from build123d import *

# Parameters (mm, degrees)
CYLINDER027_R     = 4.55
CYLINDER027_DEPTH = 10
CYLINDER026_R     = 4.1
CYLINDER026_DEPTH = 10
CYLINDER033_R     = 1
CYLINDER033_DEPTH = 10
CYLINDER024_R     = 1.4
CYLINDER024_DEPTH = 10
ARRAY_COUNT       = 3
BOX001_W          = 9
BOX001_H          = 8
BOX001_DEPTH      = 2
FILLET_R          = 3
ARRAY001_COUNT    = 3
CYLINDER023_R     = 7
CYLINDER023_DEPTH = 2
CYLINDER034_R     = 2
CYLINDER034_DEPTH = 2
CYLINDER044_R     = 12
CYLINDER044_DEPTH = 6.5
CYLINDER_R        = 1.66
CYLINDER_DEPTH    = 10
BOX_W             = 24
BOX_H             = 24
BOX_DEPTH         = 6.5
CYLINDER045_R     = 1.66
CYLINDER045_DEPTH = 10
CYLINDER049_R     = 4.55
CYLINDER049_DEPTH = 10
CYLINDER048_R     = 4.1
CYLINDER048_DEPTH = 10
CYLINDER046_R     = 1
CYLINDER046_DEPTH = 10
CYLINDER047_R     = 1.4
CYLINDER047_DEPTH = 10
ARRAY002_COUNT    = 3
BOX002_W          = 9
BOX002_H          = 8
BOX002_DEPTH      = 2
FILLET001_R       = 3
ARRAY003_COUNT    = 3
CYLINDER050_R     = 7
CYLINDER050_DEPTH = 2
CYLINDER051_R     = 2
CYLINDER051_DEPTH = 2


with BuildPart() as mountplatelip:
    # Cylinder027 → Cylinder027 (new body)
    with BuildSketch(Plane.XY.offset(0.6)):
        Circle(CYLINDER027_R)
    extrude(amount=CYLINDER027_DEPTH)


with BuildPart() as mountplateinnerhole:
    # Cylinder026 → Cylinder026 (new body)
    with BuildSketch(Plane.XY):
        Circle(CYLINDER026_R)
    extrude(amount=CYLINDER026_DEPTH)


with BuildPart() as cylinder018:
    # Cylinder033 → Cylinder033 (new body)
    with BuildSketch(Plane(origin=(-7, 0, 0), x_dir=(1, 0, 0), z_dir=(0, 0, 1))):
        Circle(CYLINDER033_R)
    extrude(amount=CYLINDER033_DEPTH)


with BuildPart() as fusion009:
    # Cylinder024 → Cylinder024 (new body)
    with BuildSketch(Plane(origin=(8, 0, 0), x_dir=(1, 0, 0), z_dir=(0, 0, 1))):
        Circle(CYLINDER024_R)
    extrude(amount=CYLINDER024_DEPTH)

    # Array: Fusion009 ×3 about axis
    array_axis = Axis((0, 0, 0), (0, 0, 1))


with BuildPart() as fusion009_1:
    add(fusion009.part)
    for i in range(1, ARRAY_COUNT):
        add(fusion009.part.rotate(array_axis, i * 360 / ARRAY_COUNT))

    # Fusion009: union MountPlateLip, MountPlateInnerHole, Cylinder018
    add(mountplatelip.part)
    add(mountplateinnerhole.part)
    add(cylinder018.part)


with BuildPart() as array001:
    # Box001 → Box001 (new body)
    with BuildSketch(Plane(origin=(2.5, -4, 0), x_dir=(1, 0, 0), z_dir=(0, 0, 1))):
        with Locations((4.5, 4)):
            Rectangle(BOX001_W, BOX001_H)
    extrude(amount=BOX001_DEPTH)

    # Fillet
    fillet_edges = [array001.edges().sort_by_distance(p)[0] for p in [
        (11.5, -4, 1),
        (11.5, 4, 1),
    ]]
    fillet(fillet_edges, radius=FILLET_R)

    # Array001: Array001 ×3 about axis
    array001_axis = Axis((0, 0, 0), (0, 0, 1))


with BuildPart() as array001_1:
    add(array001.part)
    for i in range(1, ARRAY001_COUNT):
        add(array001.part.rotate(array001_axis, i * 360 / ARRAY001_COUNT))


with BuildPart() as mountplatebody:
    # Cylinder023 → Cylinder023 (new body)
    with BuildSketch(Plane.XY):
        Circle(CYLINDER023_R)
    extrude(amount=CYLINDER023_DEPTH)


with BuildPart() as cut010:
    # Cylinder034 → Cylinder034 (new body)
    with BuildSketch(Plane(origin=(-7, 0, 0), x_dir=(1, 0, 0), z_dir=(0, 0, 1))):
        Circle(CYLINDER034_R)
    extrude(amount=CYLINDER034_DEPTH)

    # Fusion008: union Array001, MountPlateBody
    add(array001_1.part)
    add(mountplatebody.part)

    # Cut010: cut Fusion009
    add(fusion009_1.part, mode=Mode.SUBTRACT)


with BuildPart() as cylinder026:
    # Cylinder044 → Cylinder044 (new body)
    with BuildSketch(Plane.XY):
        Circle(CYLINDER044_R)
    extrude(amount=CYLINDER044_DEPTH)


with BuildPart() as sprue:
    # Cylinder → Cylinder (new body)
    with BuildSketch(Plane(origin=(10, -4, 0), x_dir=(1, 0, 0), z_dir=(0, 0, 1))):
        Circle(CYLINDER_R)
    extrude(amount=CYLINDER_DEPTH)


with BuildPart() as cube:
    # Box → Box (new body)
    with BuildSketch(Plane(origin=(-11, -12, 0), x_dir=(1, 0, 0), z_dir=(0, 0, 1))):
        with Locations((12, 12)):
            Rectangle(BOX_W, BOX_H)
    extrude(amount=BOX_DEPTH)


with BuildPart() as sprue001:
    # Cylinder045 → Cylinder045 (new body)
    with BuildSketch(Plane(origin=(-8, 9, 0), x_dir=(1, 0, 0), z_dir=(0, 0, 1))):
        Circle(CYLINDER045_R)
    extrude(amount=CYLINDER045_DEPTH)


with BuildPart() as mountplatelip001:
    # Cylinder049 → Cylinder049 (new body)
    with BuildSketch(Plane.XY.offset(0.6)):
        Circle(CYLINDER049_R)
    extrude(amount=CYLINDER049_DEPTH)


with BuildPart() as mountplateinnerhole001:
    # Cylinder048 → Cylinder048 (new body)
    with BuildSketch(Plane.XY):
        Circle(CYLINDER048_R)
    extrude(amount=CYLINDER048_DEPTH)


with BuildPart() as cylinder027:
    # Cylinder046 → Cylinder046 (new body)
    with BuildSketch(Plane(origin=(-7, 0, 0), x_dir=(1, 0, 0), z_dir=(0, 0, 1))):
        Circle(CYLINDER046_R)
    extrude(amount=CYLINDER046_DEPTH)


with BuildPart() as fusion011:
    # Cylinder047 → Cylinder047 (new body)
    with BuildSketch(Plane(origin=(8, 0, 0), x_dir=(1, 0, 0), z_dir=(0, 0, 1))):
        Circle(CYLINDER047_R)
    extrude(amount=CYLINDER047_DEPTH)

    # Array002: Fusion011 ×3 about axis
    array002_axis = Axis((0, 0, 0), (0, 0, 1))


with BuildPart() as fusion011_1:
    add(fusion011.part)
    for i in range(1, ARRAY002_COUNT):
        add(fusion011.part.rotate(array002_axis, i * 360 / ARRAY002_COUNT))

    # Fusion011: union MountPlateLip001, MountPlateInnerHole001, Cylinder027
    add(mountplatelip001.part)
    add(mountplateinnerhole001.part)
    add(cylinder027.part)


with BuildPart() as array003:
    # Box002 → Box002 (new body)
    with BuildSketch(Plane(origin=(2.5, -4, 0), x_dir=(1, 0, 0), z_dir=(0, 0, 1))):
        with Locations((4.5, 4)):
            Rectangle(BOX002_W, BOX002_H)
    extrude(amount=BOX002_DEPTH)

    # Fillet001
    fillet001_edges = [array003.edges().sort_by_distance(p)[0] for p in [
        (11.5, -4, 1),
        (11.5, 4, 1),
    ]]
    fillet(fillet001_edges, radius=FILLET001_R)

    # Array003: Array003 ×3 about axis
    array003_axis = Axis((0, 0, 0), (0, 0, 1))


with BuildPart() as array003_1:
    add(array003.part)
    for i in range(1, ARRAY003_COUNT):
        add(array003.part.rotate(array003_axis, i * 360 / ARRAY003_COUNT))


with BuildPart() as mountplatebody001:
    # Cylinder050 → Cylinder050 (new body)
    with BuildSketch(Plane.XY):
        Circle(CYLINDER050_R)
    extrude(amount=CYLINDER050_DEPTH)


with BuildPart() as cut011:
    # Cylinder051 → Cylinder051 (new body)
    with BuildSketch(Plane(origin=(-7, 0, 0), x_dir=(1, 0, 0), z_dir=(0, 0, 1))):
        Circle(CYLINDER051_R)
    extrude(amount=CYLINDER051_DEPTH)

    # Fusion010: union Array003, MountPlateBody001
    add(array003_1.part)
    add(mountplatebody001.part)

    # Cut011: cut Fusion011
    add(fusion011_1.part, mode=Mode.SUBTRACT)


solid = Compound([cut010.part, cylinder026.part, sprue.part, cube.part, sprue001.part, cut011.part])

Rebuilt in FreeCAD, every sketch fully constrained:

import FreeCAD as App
import Part
import Sketcher
from FreeCAD import Vector


def edges_at(feature, points):
    """Names of the edges that pass closest to the given points."""
    edges = feature.Shape.Edges
    near = lambda p: min(range(len(edges)), key=lambda i: edges[i].distToShape(Part.Vertex(*p))[0])
    return sorted({f"Edge{near(p) + 1}" for p in points})


def add_polygon(sketch, points):
    """Adds a closed chain of lines whose ends are joined by coincident constraints."""
    first, n = sketch.GeometryCount, len(points)
    for a, b in zip(points, points[1:] + points[:1]):
        sketch.addGeometry(Part.LineSegment(App.Vector(*a, 0), App.Vector(*b, 0)), False)
    for i in range(n):
        sketch.addConstraint(Sketcher.Constraint("Coincident", first + i, 2, first + (i + 1) % n, 1))

doc = App.newDocument("Part")
params = doc.addObject("Spreadsheet::Sheet", "Params")
for row, (alias, value) in enumerate([
    ("sketch1_diameter", "9.1 mm"),
    ("pad1_length", "10 mm"),
    ("sketch2_diameter", "8.2 mm"),
    ("pad2_length", "10 mm"),
    ("sketch3_diameter", "2 mm"),
    ("pad3_length", "10 mm"),
    ("sketch4_diameter", "2.8 mm"),
    ("pad4_length", "10 mm"),
    ("sketch5_width", "9 mm"),
    ("sketch5_height", "8 mm"),
    ("pad5_length", "2 mm"),
    ("fillet_radius", "3 mm"),
    ("sketch6_diameter", "14 mm"),
    ("pad6_length", "2 mm"),
    ("sketch7_diameter", "4 mm"),
    ("pad7_length", "2 mm"),
    ("sketch8_diameter", "24 mm"),
    ("pad8_length", "6.5 mm"),
    ("sketch9_diameter", "3.32 mm"),
    ("pad9_length", "10 mm"),
    ("sketch10_width", "24 mm"),
    ("pad10_length", "6.5 mm"),
    ("sketch11_diameter", "3.32 mm"),
    ("pad11_length", "10 mm"),
    ("sketch12_diameter", "9.1 mm"),
    ("pad12_length", "10 mm"),
    ("sketch13_diameter", "8.2 mm"),
    ("pad13_length", "10 mm"),
    ("sketch14_diameter", "2 mm"),
    ("pad14_length", "10 mm"),
    ("sketch15_diameter", "2.8 mm"),
    ("pad15_length", "10 mm"),
    ("sketch16_width", "9 mm"),
    ("sketch16_height", "8 mm"),
    ("pad16_length", "2 mm"),
    ("fillet2_radius", "3 mm"),
    ("sketch17_diameter", "14 mm"),
    ("pad17_length", "2 mm"),
    ("sketch18_diameter", "4 mm"),
    ("pad18_length", "2 mm"),
], start=1):
    params.set(f"A{row}", alias)
    params.set(f"B{row}", "=" + value)
    params.setAlias(f"B{row}", alias)

body = doc.addObject("PartDesign::Body", "Body")

sketch1 = body.newObject("Sketcher::SketchObject", "Sketch")
sketch1.AttachmentSupport = (doc.getObject("XY_Plane"), [""])
sketch1.MapMode = "FlatFace"
sketch1.AttachmentOffset = App.Placement(Vector(0, 0, 0.6), App.Rotation())
sketch1.addGeometry(Part.Circle(Vector(0, 0, 0), Vector(0, 0, 1), 4.5), False)
sketch1.addConstraint([
    Sketcher.Constraint("Coincident", 0, 3, -1, 1),
    Sketcher.Constraint("Diameter", 0, 9.1),
])
sketch1.setExpression("Constraints[1]", "Params.sketch1_diameter")
pad1 = body.newObject("PartDesign::Pad", "Pad")
pad1.Profile = sketch1
pad1.setExpression("Length", "Params.pad1_length")
body2 = doc.addObject("PartDesign::Body", "Body001")

sketch2 = body2.newObject("Sketcher::SketchObject", "Sketch001")
sketch2.AttachmentSupport = (doc.getObject("XY_Plane001"), [""])
sketch2.MapMode = "FlatFace"
sketch2.addGeometry(Part.Circle(Vector(0, 0, 0), Vector(0, 0, 1), 4.1), False)
sketch2.addConstraint([
    Sketcher.Constraint("Coincident", 0, 3, -1, 1),
    Sketcher.Constraint("Diameter", 0, 8.2),
])
sketch2.setExpression("Constraints[1]", "Params.sketch2_diameter")
pad2 = body2.newObject("PartDesign::Pad", "Pad001")
pad2.Profile = sketch2
pad2.setExpression("Length", "Params.pad2_length")
body3 = doc.addObject("PartDesign::Body", "Body002")

sketch3 = body3.newObject("Sketcher::SketchObject", "Sketch002")
sketch3.AttachmentSupport = (doc.getObject("XY_Plane002"), [""])
sketch3.MapMode = "FlatFace"
sketch3.addGeometry(Part.Circle(Vector(-7, 0, 0), Vector(0, 0, 1), 1), False)
sketch3.addConstraint([
    Sketcher.Constraint("PointOnObject", 0, 3, -1),
    Sketcher.Constraint("Diameter", 0, 2.0),
    Sketcher.Constraint("DistanceX", 0, 3, -1, 1, 7.0),
])
sketch3.setExpression("Constraints[1]", "Params.sketch3_diameter")
pad3 = body3.newObject("PartDesign::Pad", "Pad002")
pad3.Profile = sketch3
pad3.setExpression("Length", "Params.pad3_length")
body4 = doc.addObject("PartDesign::Body", "Body003")

sketch4 = body4.newObject("Sketcher::SketchObject", "Sketch003")
sketch4.AttachmentSupport = (doc.getObject("XY_Plane003"), [""])
sketch4.MapMode = "FlatFace"
sketch4.addGeometry(Part.Circle(Vector(8, 0, 0), Vector(0, 0, 1), 1.4), False)
sketch4.addConstraint([
    Sketcher.Constraint("PointOnObject", 0, 3, -1),
    Sketcher.Constraint("Diameter", 0, 2.8),
    Sketcher.Constraint("DistanceX", -1, 1, 0, 3, 8.0),
])
sketch4.setExpression("Constraints[1]", "Params.sketch4_diameter")
pad4 = body4.newObject("PartDesign::Pad", "Pad003")
pad4.Profile = sketch4
pad4.setExpression("Length", "Params.pad4_length")
body5 = doc.addObject("PartDesign::Body", "Body004")
body5.AllowCompound = True
doc.recompute()

body5.BaseFeature = body4
doc.recompute()

body6 = doc.addObject("PartDesign::Body", "Body005")
body6.BaseFeature = body4
body6.Placement = App.Placement(Vector(0, 0, 0), App.Rotation(Vector(0, 0, 1), 120))
boolean = body5.newObject("PartDesign::Boolean", "Boolean")
boolean.Type = "Fuse"
boolean.addObjects([body6])
doc.recompute()

body4.Placement = App.Placement(Vector(0, 0, 0), App.Rotation(Vector(0, 0, 1), 240))
boolean2 = body5.newObject("PartDesign::Boolean", "Boolean001")
boolean2.Type = "Fuse"
boolean2.addObjects([body4])
doc.recompute()

boolean3 = body5.newObject("PartDesign::Boolean", "Boolean002")
boolean3.Type = "Fuse"
boolean3.addObjects([body])
doc.recompute()

boolean4 = body5.newObject("PartDesign::Boolean", "Boolean003")
boolean4.Type = "Fuse"
boolean4.addObjects([body2])
doc.recompute()

boolean5 = body5.newObject("PartDesign::Boolean", "Boolean004")
boolean5.Type = "Fuse"
boolean5.addObjects([body3])
body7 = doc.addObject("PartDesign::Body", "Body006")

sketch5 = body7.newObject("Sketcher::SketchObject", "Sketch004")
sketch5.AttachmentSupport = (doc.getObject("XY_Plane006"), [""])
sketch5.MapMode = "FlatFace"
add_polygon(sketch5, [(2, 4), (2, -4), (12, -4), (12, 4)])
sketch5.addConstraint([
    Sketcher.Constraint("Vertical", 0),
    Sketcher.Constraint("Horizontal", 1),
    Sketcher.Constraint("Vertical", 2),
    Sketcher.Constraint("Horizontal", 3),
    Sketcher.Constraint("DistanceX", 1, 1, 1, 2, 9.0),
    Sketcher.Constraint("DistanceY", 0, 2, 0, 1, 8.0),
    Sketcher.Constraint("DistanceY", 0, 2, -1, 1, 4.0),
    Sketcher.Constraint("DistanceX", -1, 1, 0, 2, 2.5),
])
sketch5.setExpression("Constraints[8]", "Params.sketch5_width")
sketch5.setExpression("Constraints[9]", "Params.sketch5_height")
pad5 = body7.newObject("PartDesign::Pad", "Pad004")
pad5.Profile = sketch5
pad5.setExpression("Length", "Params.pad5_length")
doc.recompute()

fillet = body7.newObject("PartDesign::Fillet", "Fillet")
fillet.Base = (pad5, edges_at(pad5, [(11.5, -4, 1), (11.5, 4, 1)]))
fillet.setExpression("Radius", "Params.fillet_radius")
body8 = doc.addObject("PartDesign::Body", "Body007")
body8.AllowCompound = True
doc.recompute()

body8.BaseFeature = body7
doc.recompute()

body9 = doc.addObject("PartDesign::Body", "Body008")
body9.BaseFeature = body7
body9.Placement = App.Placement(Vector(0, 0, 0), App.Rotation(Vector(0, 0, 1), 120))
boolean6 = body8.newObject("PartDesign::Boolean", "Boolean005")
boolean6.Type = "Fuse"
boolean6.addObjects([body9])
doc.recompute()

body7.Placement = App.Placement(Vector(0, 0, 0), App.Rotation(Vector(0, 0, 1), 240))
boolean7 = body8.newObject("PartDesign::Boolean", "Boolean006")
boolean7.Type = "Fuse"
boolean7.addObjects([body7])
body10 = doc.addObject("PartDesign::Body", "Body009")

sketch6 = body10.newObject("Sketcher::SketchObject", "Sketch005")
sketch6.AttachmentSupport = (doc.getObject("XY_Plane009"), [""])
sketch6.MapMode = "FlatFace"
sketch6.addGeometry(Part.Circle(Vector(0, 0, 0), Vector(0, 0, 1), 7), False)
sketch6.addConstraint([
    Sketcher.Constraint("Coincident", 0, 3, -1, 1),
    Sketcher.Constraint("Diameter", 0, 14.0),
])
sketch6.setExpression("Constraints[1]", "Params.sketch6_diameter")
pad6 = body10.newObject("PartDesign::Pad", "Pad005")
pad6.Profile = sketch6
pad6.setExpression("Length", "Params.pad6_length")
body11 = doc.addObject("PartDesign::Body", "Body010")
body11.AllowCompound = True

sketch7 = body11.newObject("Sketcher::SketchObject", "Sketch006")
sketch7.AttachmentSupport = (doc.getObject("XY_Plane010"), [""])
sketch7.MapMode = "FlatFace"
sketch7.addGeometry(Part.Circle(Vector(-7, 0, 0), Vector(0, 0, 1), 2), False)
sketch7.addConstraint([
    Sketcher.Constraint("PointOnObject", 0, 3, -1),
    Sketcher.Constraint("Diameter", 0, 4.0),
    Sketcher.Constraint("DistanceX", 0, 3, -1, 1, 7.0),
])
sketch7.setExpression("Constraints[1]", "Params.sketch7_diameter")
pad7 = body11.newObject("PartDesign::Pad", "Pad006")
pad7.Profile = sketch7
pad7.setExpression("Length", "Params.pad7_length")
doc.recompute()

boolean8 = body11.newObject("PartDesign::Boolean", "Boolean007")
boolean8.Type = "Fuse"
boolean8.addObjects([body8])
doc.recompute()

boolean9 = body11.newObject("PartDesign::Boolean", "Boolean008")
boolean9.Type = "Fuse"
boolean9.addObjects([body10])
doc.recompute()

boolean10 = body11.newObject("PartDesign::Boolean", "Boolean009")
boolean10.Type = "Cut"
boolean10.addObjects([body5])
body12 = doc.addObject("PartDesign::Body", "Body011")

sketch8 = body12.newObject("Sketcher::SketchObject", "Sketch007")
sketch8.AttachmentSupport = (doc.getObject("XY_Plane011"), [""])
sketch8.MapMode = "FlatFace"
sketch8.addGeometry(Part.Circle(Vector(0, 0, 0), Vector(0, 0, 1), 12), False)
sketch8.addConstraint([
    Sketcher.Constraint("Coincident", 0, 3, -1, 1),
    Sketcher.Constraint("Diameter", 0, 24.0),
])
sketch8.setExpression("Constraints[1]", "Params.sketch8_diameter")
pad8 = body12.newObject("PartDesign::Pad", "Pad007")
pad8.Profile = sketch8
pad8.setExpression("Length", "Params.pad8_length")
body13 = doc.addObject("PartDesign::Body", "Body012")

sketch9 = body13.newObject("Sketcher::SketchObject", "Sketch008")
sketch9.AttachmentSupport = (doc.getObject("XY_Plane012"), [""])
sketch9.MapMode = "FlatFace"
sketch9.addGeometry(Part.Circle(Vector(10, -4, 0), Vector(0, 0, 1), 1.7), False)
sketch9.addConstraint([
    Sketcher.Constraint("Diameter", 0, 3.32),
    Sketcher.Constraint("DistanceX", -1, 1, 0, 3, 10.0),
    Sketcher.Constraint("DistanceY", 0, 3, -1, 1, 4.0),
])
sketch9.setExpression("Constraints[0]", "Params.sketch9_diameter")
pad9 = body13.newObject("PartDesign::Pad", "Pad008")
pad9.Profile = sketch9
pad9.setExpression("Length", "Params.pad9_length")
body14 = doc.addObject("PartDesign::Body", "Body013")

sketch10 = body14.newObject("Sketcher::SketchObject", "Sketch009")
sketch10.AttachmentSupport = (doc.getObject("XY_Plane013"), [""])
sketch10.MapMode = "FlatFace"
add_polygon(sketch10, [(-11, 12), (-11, -12), (13, -12), (13, 12)])
sketch10.addConstraint([
    Sketcher.Constraint("Vertical", 0),
    Sketcher.Constraint("Horizontal", 1),
    Sketcher.Constraint("Vertical", 2),
    Sketcher.Constraint("Horizontal", 3),
    Sketcher.Constraint("Equal", 3, 0),
    Sketcher.Constraint("DistanceX", 1, 1, 1, 2, 24.0),
    Sketcher.Constraint("DistanceX", 0, 2, -1, 1, 11.0),
    Sketcher.Constraint("DistanceY", 0, 2, -1, 1, 12.0),
])
sketch10.setExpression("Constraints[9]", "Params.sketch10_width")
pad10 = body14.newObject("PartDesign::Pad", "Pad009")
pad10.Profile = sketch10
pad10.setExpression("Length", "Params.pad10_length")
body15 = doc.addObject("PartDesign::Body", "Body014")

sketch11 = body15.newObject("Sketcher::SketchObject", "Sketch010")
sketch11.AttachmentSupport = (doc.getObject("XY_Plane014"), [""])
sketch11.MapMode = "FlatFace"
sketch11.addGeometry(Part.Circle(Vector(-8, 9, 0), Vector(0, 0, 1), 1.7), False)
sketch11.addConstraint([
    Sketcher.Constraint("Diameter", 0, 3.32),
    Sketcher.Constraint("DistanceX", 0, 3, -1, 1, 8.0),
    Sketcher.Constraint("DistanceY", -1, 1, 0, 3, 9.0),
])
sketch11.setExpression("Constraints[0]", "Params.sketch11_diameter")
pad11 = body15.newObject("PartDesign::Pad", "Pad010")
pad11.Profile = sketch11
pad11.setExpression("Length", "Params.pad11_length")
body16 = doc.addObject("PartDesign::Body", "Body015")

sketch12 = body16.newObject("Sketcher::SketchObject", "Sketch011")
sketch12.AttachmentSupport = (doc.getObject("XY_Plane015"), [""])
sketch12.MapMode = "FlatFace"
sketch12.AttachmentOffset = App.Placement(Vector(0, 0, 0.6), App.Rotation())
sketch12.addGeometry(Part.Circle(Vector(0, 0, 0), Vector(0, 0, 1), 4.5), False)
sketch12.addConstraint([
    Sketcher.Constraint("Coincident", 0, 3, -1, 1),
    Sketcher.Constraint("Diameter", 0, 9.1),
])
sketch12.setExpression("Constraints[1]", "Params.sketch12_diameter")
pad12 = body16.newObject("PartDesign::Pad", "Pad011")
pad12.Profile = sketch12
pad12.setExpression("Length", "Params.pad12_length")
body17 = doc.addObject("PartDesign::Body", "Body016")

sketch13 = body17.newObject("Sketcher::SketchObject", "Sketch012")
sketch13.AttachmentSupport = (doc.getObject("XY_Plane016"), [""])
sketch13.MapMode = "FlatFace"
sketch13.addGeometry(Part.Circle(Vector(0, 0, 0), Vector(0, 0, 1), 4.1), False)
sketch13.addConstraint([
    Sketcher.Constraint("Coincident", 0, 3, -1, 1),
    Sketcher.Constraint("Diameter", 0, 8.2),
])
sketch13.setExpression("Constraints[1]", "Params.sketch13_diameter")
pad13 = body17.newObject("PartDesign::Pad", "Pad012")
pad13.Profile = sketch13
pad13.setExpression("Length", "Params.pad13_length")
body18 = doc.addObject("PartDesign::Body", "Body017")

sketch14 = body18.newObject("Sketcher::SketchObject", "Sketch013")
sketch14.AttachmentSupport = (doc.getObject("XY_Plane017"), [""])
sketch14.MapMode = "FlatFace"
sketch14.addGeometry(Part.Circle(Vector(-7, 0, 0), Vector(0, 0, 1), 1), False)
sketch14.addConstraint([
    Sketcher.Constraint("PointOnObject", 0, 3, -1),
    Sketcher.Constraint("Diameter", 0, 2.0),
    Sketcher.Constraint("DistanceX", 0, 3, -1, 1, 7.0),
])
sketch14.setExpression("Constraints[1]", "Params.sketch14_diameter")
pad14 = body18.newObject("PartDesign::Pad", "Pad013")
pad14.Profile = sketch14
pad14.setExpression("Length", "Params.pad14_length")
body19 = doc.addObject("PartDesign::Body", "Body018")

sketch15 = body19.newObject("Sketcher::SketchObject", "Sketch014")
sketch15.AttachmentSupport = (doc.getObject("XY_Plane018"), [""])
sketch15.MapMode = "FlatFace"
sketch15.addGeometry(Part.Circle(Vector(8, 0, 0), Vector(0, 0, 1), 1.4), False)
sketch15.addConstraint([
    Sketcher.Constraint("PointOnObject", 0, 3, -1),
    Sketcher.Constraint("Diameter", 0, 2.8),
    Sketcher.Constraint("DistanceX", -1, 1, 0, 3, 8.0),
])
sketch15.setExpression("Constraints[1]", "Params.sketch15_diameter")
pad15 = body19.newObject("PartDesign::Pad", "Pad014")
pad15.Profile = sketch15
pad15.setExpression("Length", "Params.pad15_length")
body20 = doc.addObject("PartDesign::Body", "Body019")
body20.AllowCompound = True
doc.recompute()

body20.BaseFeature = body19
doc.recompute()

body21 = doc.addObject("PartDesign::Body", "Body020")
body21.BaseFeature = body19
body21.Placement = App.Placement(Vector(0, 0, 0), App.Rotation(Vector(0, 0, 1), 120))
boolean11 = body20.newObject("PartDesign::Boolean", "Boolean010")
boolean11.Type = "Fuse"
boolean11.addObjects([body21])
doc.recompute()

body19.Placement = App.Placement(Vector(0, 0, 0), App.Rotation(Vector(0, 0, 1), 240))
boolean12 = body20.newObject("PartDesign::Boolean", "Boolean011")
boolean12.Type = "Fuse"
boolean12.addObjects([body19])
doc.recompute()

boolean13 = body20.newObject("PartDesign::Boolean", "Boolean012")
boolean13.Type = "Fuse"
boolean13.addObjects([body16])
doc.recompute()

boolean14 = body20.newObject("PartDesign::Boolean", "Boolean013")
boolean14.Type = "Fuse"
boolean14.addObjects([body17])
doc.recompute()

boolean15 = body20.newObject("PartDesign::Boolean", "Boolean014")
boolean15.Type = "Fuse"
boolean15.addObjects([body18])
body22 = doc.addObject("PartDesign::Body", "Body021")

sketch16 = body22.newObject("Sketcher::SketchObject", "Sketch015")
sketch16.AttachmentSupport = (doc.getObject("XY_Plane021"), [""])
sketch16.MapMode = "FlatFace"
add_polygon(sketch16, [(2, 4), (2, -4), (12, -4), (12, 4)])
sketch16.addConstraint([
    Sketcher.Constraint("Vertical", 0),
    Sketcher.Constraint("Horizontal", 1),
    Sketcher.Constraint("Vertical", 2),
    Sketcher.Constraint("Horizontal", 3),
    Sketcher.Constraint("DistanceX", 1, 1, 1, 2, 9.0),
    Sketcher.Constraint("DistanceY", 0, 2, 0, 1, 8.0),
    Sketcher.Constraint("DistanceY", 0, 2, -1, 1, 4.0),
    Sketcher.Constraint("DistanceX", -1, 1, 0, 2, 2.5),
])
sketch16.setExpression("Constraints[8]", "Params.sketch16_width")
sketch16.setExpression("Constraints[9]", "Params.sketch16_height")
pad16 = body22.newObject("PartDesign::Pad", "Pad015")
pad16.Profile = sketch16
pad16.setExpression("Length", "Params.pad16_length")
doc.recompute()

fillet2 = body22.newObject("PartDesign::Fillet", "Fillet001")
fillet2.Base = (pad16, edges_at(pad16, [(11.5, -4, 1), (11.5, 4, 1)]))
fillet2.setExpression("Radius", "Params.fillet2_radius")
body23 = doc.addObject("PartDesign::Body", "Body022")
body23.AllowCompound = True
doc.recompute()

body23.BaseFeature = body22
doc.recompute()

body24 = doc.addObject("PartDesign::Body", "Body023")
body24.BaseFeature = body22
body24.Placement = App.Placement(Vector(0, 0, 0), App.Rotation(Vector(0, 0, 1), 120))
boolean16 = body23.newObject("PartDesign::Boolean", "Boolean015")
boolean16.Type = "Fuse"
boolean16.addObjects([body24])
doc.recompute()

body22.Placement = App.Placement(Vector(0, 0, 0), App.Rotation(Vector(0, 0, 1), 240))
boolean17 = body23.newObject("PartDesign::Boolean", "Boolean016")
boolean17.Type = "Fuse"
boolean17.addObjects([body22])
body25 = doc.addObject("PartDesign::Body", "Body024")

sketch17 = body25.newObject("Sketcher::SketchObject", "Sketch016")
sketch17.AttachmentSupport = (doc.getObject("XY_Plane024"), [""])
sketch17.MapMode = "FlatFace"
sketch17.addGeometry(Part.Circle(Vector(0, 0, 0), Vector(0, 0, 1), 7), False)
sketch17.addConstraint([
    Sketcher.Constraint("Coincident", 0, 3, -1, 1),
    Sketcher.Constraint("Diameter", 0, 14.0),
])
sketch17.setExpression("Constraints[1]", "Params.sketch17_diameter")
pad17 = body25.newObject("PartDesign::Pad", "Pad016")
pad17.Profile = sketch17
pad17.setExpression("Length", "Params.pad17_length")
body26 = doc.addObject("PartDesign::Body", "Body025")
body26.AllowCompound = True

sketch18 = body26.newObject("Sketcher::SketchObject", "Sketch017")
sketch18.AttachmentSupport = (doc.getObject("XY_Plane025"), [""])
sketch18.MapMode = "FlatFace"
sketch18.addGeometry(Part.Circle(Vector(-7, 0, 0), Vector(0, 0, 1), 2), False)
sketch18.addConstraint([
    Sketcher.Constraint("PointOnObject", 0, 3, -1),
    Sketcher.Constraint("Diameter", 0, 4.0),
    Sketcher.Constraint("DistanceX", 0, 3, -1, 1, 7.0),
])
sketch18.setExpression("Constraints[1]", "Params.sketch18_diameter")
pad18 = body26.newObject("PartDesign::Pad", "Pad017")
pad18.Profile = sketch18
pad18.setExpression("Length", "Params.pad18_length")
doc.recompute()

boolean18 = body26.newObject("PartDesign::Boolean", "Boolean017")
boolean18.Type = "Fuse"
boolean18.addObjects([body23])
doc.recompute()

boolean19 = body26.newObject("PartDesign::Boolean", "Boolean018")
boolean19.Type = "Fuse"
boolean19.addObjects([body25])
doc.recompute()

boolean20 = body26.newObject("PartDesign::Boolean", "Boolean019")
boolean20.Type = "Cut"
boolean20.addObjects([body20])

doc.recompute()
